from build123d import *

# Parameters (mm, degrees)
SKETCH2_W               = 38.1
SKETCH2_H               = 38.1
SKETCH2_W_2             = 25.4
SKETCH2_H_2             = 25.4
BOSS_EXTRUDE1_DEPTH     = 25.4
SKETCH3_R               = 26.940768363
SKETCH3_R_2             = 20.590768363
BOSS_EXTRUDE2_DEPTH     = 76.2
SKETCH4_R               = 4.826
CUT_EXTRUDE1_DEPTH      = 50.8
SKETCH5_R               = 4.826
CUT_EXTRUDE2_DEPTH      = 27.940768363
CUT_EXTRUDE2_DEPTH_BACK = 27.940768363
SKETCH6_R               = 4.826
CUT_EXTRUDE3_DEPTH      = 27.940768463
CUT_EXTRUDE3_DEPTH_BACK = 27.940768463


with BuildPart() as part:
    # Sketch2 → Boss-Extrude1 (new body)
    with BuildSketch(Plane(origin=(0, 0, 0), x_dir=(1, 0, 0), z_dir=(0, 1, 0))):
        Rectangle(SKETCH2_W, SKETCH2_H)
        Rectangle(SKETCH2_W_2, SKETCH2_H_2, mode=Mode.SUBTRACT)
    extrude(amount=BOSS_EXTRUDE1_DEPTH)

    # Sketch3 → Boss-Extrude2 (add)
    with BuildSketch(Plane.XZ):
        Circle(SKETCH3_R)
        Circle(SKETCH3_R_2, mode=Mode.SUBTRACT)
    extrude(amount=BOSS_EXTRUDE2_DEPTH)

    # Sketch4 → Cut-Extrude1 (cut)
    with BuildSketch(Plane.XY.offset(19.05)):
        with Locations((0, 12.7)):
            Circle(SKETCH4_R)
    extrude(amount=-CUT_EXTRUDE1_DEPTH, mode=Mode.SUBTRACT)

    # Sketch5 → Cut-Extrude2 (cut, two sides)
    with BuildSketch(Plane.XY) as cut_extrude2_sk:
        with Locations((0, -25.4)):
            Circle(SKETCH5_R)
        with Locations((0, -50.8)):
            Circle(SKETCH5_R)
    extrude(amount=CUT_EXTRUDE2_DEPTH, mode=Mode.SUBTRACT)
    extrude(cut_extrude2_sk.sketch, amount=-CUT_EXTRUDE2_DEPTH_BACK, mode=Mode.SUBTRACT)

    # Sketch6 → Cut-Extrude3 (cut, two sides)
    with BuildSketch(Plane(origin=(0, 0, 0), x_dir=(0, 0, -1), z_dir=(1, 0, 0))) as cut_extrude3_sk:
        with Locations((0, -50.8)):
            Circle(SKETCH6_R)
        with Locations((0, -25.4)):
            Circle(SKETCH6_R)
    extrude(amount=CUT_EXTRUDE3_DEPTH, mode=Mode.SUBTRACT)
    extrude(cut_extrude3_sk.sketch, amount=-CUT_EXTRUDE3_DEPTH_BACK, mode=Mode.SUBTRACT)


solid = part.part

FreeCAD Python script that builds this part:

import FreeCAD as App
import Part
import Sketcher
from FreeCAD import Vector
Q = App.Units.Quantity


def add_polygon(sketch, points):
    """Adds a closed chain of lines whose ends are joined by coincident constraints."""
    first, n = sketch.GeometryCount, len(points)
    for a, b in zip(points, points[1:] + points[:1]):
        sketch.addGeometry(Part.LineSegment(App.Vector(*a, 0), App.Vector(*b, 0)), False)
    for i in range(n):
        sketch.addConstraint(Sketcher.Constraint("Coincident", first + i, 2, first + (i + 1) % n, 1))

doc = App.newDocument("Part")
body = doc.addObject("PartDesign::Body", "Body")

# Sketch on XZ plane
sketch1 = body.newObject("Sketcher::SketchObject", "Sketch")
sketch1.AttachmentSupport = (doc.getObject("XZ_Plane"), [""])
sketch1.MapMode = "FlatFace"
add_polygon(sketch1, [(-19, -19), (-19, 19), (19, 19), (19, -19)])  # lines 0-3
add_polygon(sketch1, [(13, 13), (-13, 13), (-13, -13), (13, -13)])  # lines 4-7
sketch1.addConstraint([
    Sketcher.Constraint("Vertical", 0),
    Sketcher.Constraint("Horizontal", 1),
    Sketcher.Constraint("Vertical", 2),
    Sketcher.Constraint("Horizontal", 3),
    Sketcher.Constraint("Horizontal", 4),
    Sketcher.Constraint("Vertical", 5),
    Sketcher.Constraint("Horizontal", 6),
    Sketcher.Constraint("Vertical", 7),
    Sketcher.Constraint("Symmetric", 0, 2, 2, 2, -1, 1),
    Sketcher.Constraint("Symmetric", 4, 2, 6, 2, -1, 1),
    Sketcher.Constraint("Equal", 3, 0),
    Sketcher.Constraint("Equal", 6, 5),
    Sketcher.Constraint("DistanceX", 4, 2, 4, 1, Q("1 in")),
    Sketcher.Constraint("DistanceX", 1, 1, 1, 2, Q("1.5 in")),
])
pad1 = body.newObject("PartDesign::Pad", "Pad")
pad1.Profile = sketch1
pad1.Length = Q("1 in")
pad1.Reversed = True

# Sketch on XZ plane
sketch2 = body.newObject("Sketcher::SketchObject", "Sketch001")
sketch2.AttachmentSupport = (doc.getObject("XZ_Plane"), [""])
sketch2.MapMode = "FlatFace"
sketch2.addGeometry([
    Part.Circle(Vector(0, 0, 0), Vector(0, 0, 1), 27),
    Part.Circle(Vector(0, 0, 0), Vector(0, 0, 1), 21),
], False)
sketch2.addConstraint([
    Sketcher.Constraint("Coincident", 0, 3, -1, 1),
    Sketcher.Constraint("Coincident", 1, 3, -1, 1),
    Sketcher.Constraint("Diameter", 0, Q("53.881537 mm")),
    Sketcher.Constraint("Diameter", 1, Q("41.181537 mm")),
])
pad2 = body.newObject("PartDesign::Pad", "Pad001")
pad2.Profile = sketch2
pad2.Length = Q("3 in")

# Sketch on XY plane
sketch3 = body.newObject("Sketcher::SketchObject", "Sketch002")
sketch3.AttachmentSupport = (doc.getObject("XY_Plane"), [""])
sketch3.MapMode = "FlatFace"
sketch3.AttachmentOffset = App.Placement(Vector(0, 0, 0.75 * 25.4), App.Rotation())
sketch3.addGeometry(Part.Circle(Vector(0, 12.7, 0), Vector(0, 0, 1), 4.8), False)
sketch3.addConstraint([
    Sketcher.Constraint("PointOnObject", 0, 3, -2),
    Sketcher.Constraint("Diameter", 0, Q("0.38 in")),
    Sketcher.Constraint("DistanceY", -1, 1, 0, 3, Q("0.5 in")),
])
pocket1 = body.newObject("PartDesign::Pocket", "Pocket")
pocket1.Profile = sketch3
pocket1.Length = Q("2 in")

# Sketch on XY plane
sketch4 = body.newObject("Sketcher::SketchObject", "Sketch003")
sketch4.AttachmentSupport = (doc.getObject("XY_Plane"), [""])
sketch4.MapMode = "FlatFace"
sketch4.addGeometry([
    Part.Circle(Vector(0, -25.4, 0), Vector(0, 0, 1), 4.8),
    Part.Circle(Vector(0, -50.8, 0), Vector(0, 0, 1), 4.8),
], False)
sketch4.addConstraint([
    Sketcher.Constraint("Equal", 0, 1),
    Sketcher.Constraint("PointOnObject", 0, 3, -2),
    Sketcher.Constraint("PointOnObject", 1, 3, -2),
    Sketcher.Constraint("Diameter", 0, Q("0.38 in")),
    Sketcher.Constraint("DistanceY", 0, 3, -1, 1, Q("1 in")),
    Sketcher.Constraint("DistanceY", 1, 3, -1, 1, Q("2 in")),
])
pocket2 = body.newObject("PartDesign::Pocket", "Pocket001")
pocket2.Profile = sketch4
pocket2.Type = "ThroughAll"
pocket2.Midplane = True

# Sketch on YZ plane
sketch5 = body.newObject("Sketcher::SketchObject", "Sketch004")
sketch5.AttachmentSupport = (doc.getObject("YZ_Plane"), [""])
sketch5.MapMode = "FlatFace"
sketch5.addGeometry([
    Part.Circle(Vector(-50.8, 0, 0), Vector(0, 0, 1), 4.8),
    Part.Circle(Vector(-25.4, 0, 0), Vector(0, 0, 1), 4.8),
], False)
sketch5.addConstraint([
    Sketcher.Constraint("Equal", 0, 1),
    Sketcher.Constraint("PointOnObject", 0, 3, -1),
    Sketcher.Constraint("PointOnObject", 1, 3, -1),
    Sketcher.Constraint("Diameter", 0, Q("0.38 in")),
    Sketcher.Constraint("DistanceX", 0, 3, -1, 1, Q("2 in")),
    Sketcher.Constraint("DistanceX", 1, 3, -1, 1, Q("1 in")),
])
pocket3 = body.newObject("PartDesign::Pocket", "Pocket002")
pocket3.Profile = sketch5
pocket3.Type = "ThroughAll"
pocket3.Midplane = True

doc.recompute()
